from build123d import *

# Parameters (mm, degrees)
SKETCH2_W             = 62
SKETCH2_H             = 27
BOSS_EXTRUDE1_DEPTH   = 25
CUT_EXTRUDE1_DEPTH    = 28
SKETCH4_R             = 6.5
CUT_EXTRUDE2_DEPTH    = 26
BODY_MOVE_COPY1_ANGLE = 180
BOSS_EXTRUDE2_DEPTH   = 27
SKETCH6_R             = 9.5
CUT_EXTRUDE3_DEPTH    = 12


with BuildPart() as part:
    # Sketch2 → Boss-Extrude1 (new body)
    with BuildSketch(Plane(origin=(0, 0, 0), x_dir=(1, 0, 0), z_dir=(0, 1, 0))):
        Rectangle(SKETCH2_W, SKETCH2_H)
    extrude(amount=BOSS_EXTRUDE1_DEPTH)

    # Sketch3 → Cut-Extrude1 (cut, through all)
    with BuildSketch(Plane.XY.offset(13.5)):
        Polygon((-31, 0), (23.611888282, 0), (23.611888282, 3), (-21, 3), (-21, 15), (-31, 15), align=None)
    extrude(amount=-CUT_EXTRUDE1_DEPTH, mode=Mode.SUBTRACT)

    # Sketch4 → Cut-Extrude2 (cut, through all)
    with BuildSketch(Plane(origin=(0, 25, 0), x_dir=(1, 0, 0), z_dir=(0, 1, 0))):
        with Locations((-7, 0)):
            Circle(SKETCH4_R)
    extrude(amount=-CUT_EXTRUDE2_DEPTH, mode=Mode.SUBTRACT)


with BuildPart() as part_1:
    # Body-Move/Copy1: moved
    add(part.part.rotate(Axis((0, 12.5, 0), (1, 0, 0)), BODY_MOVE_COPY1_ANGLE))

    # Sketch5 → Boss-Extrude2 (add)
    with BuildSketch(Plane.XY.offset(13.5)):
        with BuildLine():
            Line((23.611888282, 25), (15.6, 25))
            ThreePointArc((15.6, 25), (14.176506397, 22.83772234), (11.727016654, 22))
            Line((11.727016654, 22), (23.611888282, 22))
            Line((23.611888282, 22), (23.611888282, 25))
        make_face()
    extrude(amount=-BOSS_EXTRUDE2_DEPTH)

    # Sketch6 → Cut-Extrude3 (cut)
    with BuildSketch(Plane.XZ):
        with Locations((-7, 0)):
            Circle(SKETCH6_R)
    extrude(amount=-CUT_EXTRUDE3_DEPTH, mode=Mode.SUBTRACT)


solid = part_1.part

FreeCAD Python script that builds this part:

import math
import FreeCAD as App
import Part
import Sketcher
Q = App.Units.Quantity

doc = App.newDocument("Part")
body = doc.addObject("PartDesign::Body", "Body")

# Sketch on XZ plane
sketch1 = body.newObject("Sketcher::SketchObject", "Sketch")
sketch1.AttachmentSupport = (doc.getObject("XZ_Plane"), [""])
sketch1.MapMode = "FlatFace"
sketch1.addGeometry(Part.LineSegment(App.Vector(-31, -14, 0), App.Vector(-31, 14, 0)), False)
sketch1.addGeometry(Part.LineSegment(App.Vector(-31, 14, 0), App.Vector(31, 14, 0)), False)
sketch1.addGeometry(Part.LineSegment(App.Vector(31, 14, 0), App.Vector(31, -14, 0)), False)
sketch1.addGeometry(Part.LineSegment(App.Vector(31, -14, 0), App.Vector(-31, -14, 0)), False)
sketch1.addConstraint(Sketcher.Constraint("Coincident", 0, 2, 1, 1))
sketch1.addConstraint(Sketcher.Constraint("Coincident", 1, 2, 2, 1))
sketch1.addConstraint(Sketcher.Constraint("Coincident", 2, 2, 3, 1))
sketch1.addConstraint(Sketcher.Constraint("Coincident", 3, 2, 0, 1))
sketch1.addConstraint(Sketcher.Constraint("Vertical", 0))
sketch1.addConstraint(Sketcher.Constraint("Horizontal", 1))
sketch1.addConstraint(Sketcher.Constraint("Vertical", 2))
sketch1.addConstraint(Sketcher.Constraint("Horizontal", 3))
sketch1.addConstraint(Sketcher.Constraint("Symmetric", 0, 2, 2, 2, -1, 1))
sketch1.addConstraint(Sketcher.Constraint("DistanceX", 1, 1, 1, 2, Q("62 mm")))
sketch1.addConstraint(Sketcher.Constraint("DistanceY", 0, 1, 0, 2, Q("27 mm")))
pad1 = body.newObject("PartDesign::Pad", "Pad")
pad1.Profile = sketch1
pad1.Length = 25
pad1.Reversed = True

# Sketch on XY plane
sketch2 = body.newObject("Sketcher::SketchObject", "Sketch001")
sketch2.AttachmentSupport = (doc.getObject("XY_Plane"), [""])
sketch2.MapMode = "FlatFace"
sketch2.AttachmentOffset = App.Placement(App.Vector(0, 0, 13.5), App.Rotation())
sketch2.addGeometry(Part.LineSegment(App.Vector(-31, 0, 0), App.Vector(23.6, 0, 0)), False)
sketch2.addGeometry(Part.LineSegment(App.Vector(23.6, 0, 0), App.Vector(23.6, 3, 0)), False)
sketch2.addGeometry(Part.LineSegment(App.Vector(23.6, 3, 0), App.Vector(-21, 3, 0)), False)
sketch2.addGeometry(Part.LineSegment(App.Vector(-21, 3, 0), App.Vector(-21, 15, 0)), False)
sketch2.addGeometry(Part.LineSegment(App.Vector(-21, 15, 0), App.Vector(-31, 15, 0)), False)
sketch2.addGeometry(Part.LineSegment(App.Vector(-31, 15, 0), App.Vector(-31, 0, 0)), False)
sketch2.addConstraint(Sketcher.Constraint("Coincident", 0, 2, 1, 1))
sketch2.addConstraint(Sketcher.Constraint("Coincident", 1, 2, 2, 1))
sketch2.addConstraint(Sketcher.Constraint("Coincident", 2, 2, 3, 1))
sketch2.addConstraint(Sketcher.Constraint("Coincident", 3, 2, 4, 1))
sketch2.addConstraint(Sketcher.Constraint("Coincident", 4, 2, 5, 1))
sketch2.addConstraint(Sketcher.Constraint("Coincident", 5, 2, 0, 1))
sketch2.addConstraint(Sketcher.Constraint("Horizontal", 0))
sketch2.addConstraint(Sketcher.Constraint("Vertical", 1))
sketch2.addConstraint(Sketcher.Constraint("Horizontal", 2))
sketch2.addConstraint(Sketcher.Constraint("Vertical", 3))
sketch2.addConstraint(Sketcher.Constraint("Horizontal", 4))
sketch2.addConstraint(Sketcher.Constraint("Vertical", 5))
sketch2.addConstraint(Sketcher.Constraint("PointOnObject", 0, 2, -1))
sketch2.addConstraint(Sketcher.Constraint("DistanceX", 4, 2, 4, 1, Q("10 mm")))
sketch2.addConstraint(Sketcher.Constraint("DistanceY", 1, 1, 1, 2, Q("3 mm")))
sketch2.addConstraint(Sketcher.Constraint("DistanceY", 3, 1, 3, 2, Q("12 mm")))
sketch2.addConstraint(Sketcher.Constraint("DistanceX", 2, 2, -1, 1, Q("21 mm")))
sketch2.addConstraint(Sketcher.Constraint("DistanceX", 0, 1, 0, 2, Q("54.611888 mm")))
pocket1 = body.newObject("PartDesign::Pocket", "Pocket")
pocket1.Profile = sketch2
pocket1.Type = "ThroughAll"

# Sketch on XZ plane
sketch3 = body.newObject("Sketcher::SketchObject", "Sketch002")
sketch3.AttachmentSupport = (doc.getObject("XZ_Plane"), [""])
sketch3.MapMode = "FlatFace"
sketch3.AttachmentOffset = App.Placement(App.Vector(0, 0, -25), App.Rotation())
sketch3.addGeometry(Part.Circle(App.Vector(-7, 0, 0), App.Vector(0, 0, 1), 6), False)
sketch3.addConstraint(Sketcher.Constraint("PointOnObject", 0, 3, -1))
sketch3.addConstraint(Sketcher.Constraint("Diameter", 0, Q("13 mm")))
sketch3.addConstraint(Sketcher.Constraint("DistanceX", 0, 3, -1, 1, Q("7 mm")))
pocket2 = body.newObject("PartDesign::Pocket", "Pocket001")
pocket2.Profile = sketch3
pocket2.Type = "ThroughAll"
pocket2.Reversed = True
body2 = doc.addObject("PartDesign::Body", "Body001")
doc.recompute()

body.Placement = App.Placement(App.Vector(0, 25, 0), App.Rotation(App.Vector(1, 0, 0), 180))
boolean = body2.newObject("PartDesign::Boolean", "Boolean")
boolean.Type = "Fuse"
boolean.addObjects([body])

# Sketch on XY plane
sketch4 = body2.newObject("Sketcher::SketchObject", "Sketch003")
sketch4.AttachmentSupport = (doc.getObject("XY_Plane001"), [""])
sketch4.MapMode = "FlatFace"
sketch4.AttachmentOffset = App.Placement(App.Vector(0, 0, 13.5), App.Rotation())
sketch4.addGeometry(Part.LineSegment(App.Vector(23.6, 25, 0), App.Vector(15.6, 25, 0)), False)
sketch4.addGeometry(Part.ArcOfCircle(Part.Circle(App.Vector(11.7, 26, 0), App.Vector(0, 0, 1), 4), math.radians(-90), math.radians(-14)), False)
sketch4.addGeometry(Part.LineSegment(App.Vector(11.7, 22, 0), App.Vector(23.6, 22, 0)), False)
sketch4.addGeometry(Part.LineSegment(App.Vector(23.6, 22, 0), App.Vector(23.6, 25, 0)), False)
sketch4.addConstraint(Sketcher.Constraint("Coincident", 0, 2, 1, 2))
sketch4.addConstraint(Sketcher.Constraint("Tangent", 1, 1, 2, 1))
sketch4.addConstraint(Sketcher.Constraint("Coincident", 2, 2, 3, 1))
sketch4.addConstraint(Sketcher.Constraint("Coincident", 3, 2, 0, 1))
sketch4.addConstraint(Sketcher.Constraint("Horizontal", 0))
sketch4.addConstraint(Sketcher.Constraint("Horizontal", 2))
sketch4.addConstraint(Sketcher.Constraint("Vertical", 3))
sketch4.addConstraint(Sketcher.Constraint("Radius", 1, Q("4 mm")))
sketch4.addConstraint(Sketcher.Constraint("DistanceY", 3, 1, 3, 2, Q("3 mm")))
sketch4.addConstraint(Sketcher.Constraint("DistanceY", -1, 1, 1, 3, Q("26 mm")))
sketch4.addConstraint(Sketcher.Constraint("DistanceX", -1, 1, 0, 2, Q("15.6 mm")))
sketch4.addConstraint(Sketcher.Constraint("DistanceX", 0, 2, 0, 1, Q("8.011888 mm")))
pad2 = body2.newObject("PartDesign::Pad", "Pad001")
pad2.Profile = sketch4
pad2.Length = 27
pad2.Reversed = True

# Sketch on XZ plane
sketch5 = body2.newObject("Sketcher::SketchObject", "Sketch004")
sketch5.AttachmentSupport = (doc.getObject("XZ_Plane001"), [""])
sketch5.MapMode = "FlatFace"
sketch5.addGeometry(Part.Circle(App.Vector(-7, 0, 0), App.Vector(0, 0, 1), 10), False)
sketch5.addConstraint(Sketcher.Constraint("PointOnObject", 0, 3, -1))
sketch5.addConstraint(Sketcher.Constraint("Diameter", 0, Q("19 mm")))
sketch5.addConstraint(Sketcher.Constraint("DistanceX", 0, 3, -1, 1, Q("7 mm")))
pocket3 = body2.newObject("PartDesign::Pocket", "Pocket002")
pocket3.Profile = sketch5
pocket3.Length = 12

doc.recompute()
